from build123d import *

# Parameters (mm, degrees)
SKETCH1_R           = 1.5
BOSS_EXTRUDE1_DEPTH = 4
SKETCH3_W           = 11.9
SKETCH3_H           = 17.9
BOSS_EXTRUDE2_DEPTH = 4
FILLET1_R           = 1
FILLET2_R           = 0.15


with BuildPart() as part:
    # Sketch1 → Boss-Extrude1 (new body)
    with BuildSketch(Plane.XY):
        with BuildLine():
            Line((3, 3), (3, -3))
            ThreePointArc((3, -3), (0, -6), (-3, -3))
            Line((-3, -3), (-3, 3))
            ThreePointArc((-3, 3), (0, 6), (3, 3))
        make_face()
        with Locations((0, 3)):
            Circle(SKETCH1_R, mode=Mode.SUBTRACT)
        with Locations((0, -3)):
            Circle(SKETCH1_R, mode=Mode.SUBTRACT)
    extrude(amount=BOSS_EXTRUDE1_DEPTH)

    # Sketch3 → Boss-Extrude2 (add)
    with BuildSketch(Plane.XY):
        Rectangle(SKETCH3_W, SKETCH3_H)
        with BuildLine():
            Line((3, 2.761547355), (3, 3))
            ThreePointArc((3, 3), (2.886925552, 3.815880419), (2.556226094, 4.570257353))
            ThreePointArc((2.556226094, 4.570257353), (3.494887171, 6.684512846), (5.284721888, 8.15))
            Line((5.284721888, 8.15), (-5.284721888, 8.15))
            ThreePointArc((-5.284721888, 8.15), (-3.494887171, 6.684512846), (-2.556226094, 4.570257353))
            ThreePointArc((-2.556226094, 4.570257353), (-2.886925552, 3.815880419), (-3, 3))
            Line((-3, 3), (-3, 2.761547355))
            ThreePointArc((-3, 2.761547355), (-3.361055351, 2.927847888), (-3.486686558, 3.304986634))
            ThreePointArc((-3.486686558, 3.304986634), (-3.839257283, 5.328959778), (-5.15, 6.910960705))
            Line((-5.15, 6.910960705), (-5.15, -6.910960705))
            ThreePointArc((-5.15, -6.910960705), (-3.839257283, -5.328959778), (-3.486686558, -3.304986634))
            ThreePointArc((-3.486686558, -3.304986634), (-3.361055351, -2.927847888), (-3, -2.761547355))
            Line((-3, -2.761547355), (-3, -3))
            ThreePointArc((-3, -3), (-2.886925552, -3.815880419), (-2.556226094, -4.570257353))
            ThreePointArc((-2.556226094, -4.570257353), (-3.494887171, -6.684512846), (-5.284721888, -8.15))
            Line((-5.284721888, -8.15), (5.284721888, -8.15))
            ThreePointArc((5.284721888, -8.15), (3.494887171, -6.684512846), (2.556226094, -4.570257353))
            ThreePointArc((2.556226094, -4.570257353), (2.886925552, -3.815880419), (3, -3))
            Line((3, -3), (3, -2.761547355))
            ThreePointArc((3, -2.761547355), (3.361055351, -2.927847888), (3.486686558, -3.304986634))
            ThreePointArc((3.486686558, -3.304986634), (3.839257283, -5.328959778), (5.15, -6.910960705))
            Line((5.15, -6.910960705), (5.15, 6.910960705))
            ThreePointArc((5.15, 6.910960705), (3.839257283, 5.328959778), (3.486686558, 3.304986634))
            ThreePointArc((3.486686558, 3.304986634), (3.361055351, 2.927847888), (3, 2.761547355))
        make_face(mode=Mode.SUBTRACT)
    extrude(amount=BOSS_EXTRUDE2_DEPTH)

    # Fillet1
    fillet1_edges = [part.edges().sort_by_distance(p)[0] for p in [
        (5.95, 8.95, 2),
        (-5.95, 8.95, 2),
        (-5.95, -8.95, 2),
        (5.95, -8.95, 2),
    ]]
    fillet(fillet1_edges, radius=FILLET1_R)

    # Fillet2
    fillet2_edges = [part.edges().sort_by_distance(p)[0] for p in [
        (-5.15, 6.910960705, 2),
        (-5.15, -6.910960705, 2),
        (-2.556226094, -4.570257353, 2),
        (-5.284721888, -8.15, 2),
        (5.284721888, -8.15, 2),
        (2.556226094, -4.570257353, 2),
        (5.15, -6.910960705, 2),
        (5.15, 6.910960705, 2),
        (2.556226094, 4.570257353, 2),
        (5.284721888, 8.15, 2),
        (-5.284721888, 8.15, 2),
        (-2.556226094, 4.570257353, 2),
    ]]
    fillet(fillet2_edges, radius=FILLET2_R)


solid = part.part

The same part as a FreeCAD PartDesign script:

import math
import FreeCAD as App
import Part
import Sketcher
from FreeCAD import Vector
Q = App.Units.Quantity


def edges_at(feature, points):
    """Names of the edges that pass closest to the given points."""
    edges = feature.Shape.Edges
    near = lambda p: min(range(len(edges)), key=lambda i: edges[i].distToShape(Part.Vertex(*p))[0])
    return sorted({f"Edge{near(p) + 1}" for p in points})


def add_polygon(sketch, points):
    """Adds a closed chain of lines whose ends are joined by coincident constraints."""
    first, n = sketch.GeometryCount, len(points)
    for a, b in zip(points, points[1:] + points[:1]):
        sketch.addGeometry(Part.LineSegment(App.Vector(*a, 0), App.Vector(*b, 0)), False)
    for i in range(n):
        sketch.addConstraint(Sketcher.Constraint("Coincident", first + i, 2, first + (i + 1) % n, 1))

doc = App.newDocument("Part")
params = doc.addObject("Spreadsheet::Sheet", "Params")
for row, (alias, value) in enumerate([
    ("sketch1_diameter", "3 mm"),
    ("sketch1_radius", "3 mm"),
    ("sketch1_height", "6 mm"),
    ("pad1_length", "4 mm"),
    ("sketch2_radius", "4 mm"),
    ("sketch2_radius2", "3 mm"),
    ("sketch2_radius3", "5 mm"),
    ("sketch2_radius4", "0.5 mm"),
    ("sketch2_width", "11.9 mm"),
    ("pad2_length", "4 mm"),
    ("fillet_radius", "1 mm"),
    ("fillet2_radius", "0.15 mm"),
], start=1):
    params.set(f"A{row}", alias)
    params.set(f"B{row}", "=" + value)
    params.setAlias(f"B{row}", alias)

body = doc.addObject("PartDesign::Body", "Body")

# Sketch on XY plane
sketch1 = body.newObject("Sketcher::SketchObject", "Sketch")
sketch1.AttachmentSupport = (doc.getObject("XY_Plane"), [""])
sketch1.MapMode = "FlatFace"
sketch1.addGeometry([
    Part.LineSegment(Vector(3, -3, 0), Vector(3, 3, 0)),  # 0
    Part.ArcOfCircle(Part.Circle(Vector(0, 3, 0), Vector(0, 0, 1), 3), math.radians(0), math.radians(180)),  # 1
    Part.LineSegment(Vector(-3, 3, 0), Vector(-3, -3, 0)),  # 2
    Part.ArcOfCircle(Part.Circle(Vector(0, -3, 0), Vector(0, 0, 1), 3), math.radians(180), math.radians(360)),  # 3
    Part.Circle(Vector(0, -3, 0), Vector(0, 0, 1), 1.5),  # 4
    Part.Circle(Vector(0, 3, 0), Vector(0, 0, 1), 1.5),  # 5
], False)
sketch1.addConstraint([
    Sketcher.Constraint("Tangent", 0, 2, 1, 1),
    Sketcher.Constraint("Tangent", 1, 2, 2, 1),
    Sketcher.Constraint("Tangent", 2, 2, 3, 1),
    Sketcher.Constraint("Tangent", 3, 2, 0, 1),
    Sketcher.Constraint("Vertical", 0),
    Sketcher.Constraint("Vertical", 2),
    Sketcher.Constraint("Coincident", 4, 3, 3, 3),
    Sketcher.Constraint("Coincident", 5, 3, 1, 3),
    Sketcher.Constraint("Equal", 4, 5),
    Sketcher.Constraint("Symmetric", 1, 3, 3, 3, -1, 1),
    Sketcher.Constraint("Diameter", 4, Q("3 mm")),
    Sketcher.Constraint("Radius", 1, Q("3 mm")),
    Sketcher.Constraint("DistanceY", 0, 1, 0, 2, Q("6 mm")),
])
sketch1.setExpression("Constraints[10]", "Params.sketch1_diameter")
sketch1.setExpression("Constraints[11]", "Params.sketch1_radius")
sketch1.setExpression("Constraints[12]", "Params.sketch1_height")
pad1 = body.newObject("PartDesign::Pad", "Pad")
pad1.Profile = sketch1
pad1.setExpression("Length", "Params.pad1_length")

# Sketch on XY plane
sketch2 = body.newObject("Sketcher::SketchObject", "Sketch001")
sketch2.AttachmentSupport = (doc.getObject("XY_Plane"), [""])
sketch2.MapMode = "FlatFace"
add_polygon(sketch2, [(-5.95, 8.95), (-5.95, -8.95), (5.95, -8.95), (5.95, 8.95)])  # lines 0-3
sketch2.addGeometry(Part.LineSegment(Vector(3, 3, 0), Vector(3, 2.76, 0)), False)  # 4
sketch2.addGeometry(Part.ArcOfCircle(Part.Circle(Vector(2.99, 3.26, 0), Vector(0, 0, 1), 0.5), math.radians(-89), math.radians(5)), False)  # 5
sketch2.addGeometry(Part.ArcOfCircle(Part.Circle(Vector(7.47, 3.65, 0), Vector(0, 0, 1), 4), math.radians(125), math.radians(185)), False)  # 6
sketch2.addGeometry(Part.LineSegment(Vector(5.15, 6.91, 0), Vector(5.15, -6.91, 0)), False)  # 7
sketch2.addGeometry(Part.ArcOfCircle(Part.Circle(Vector(7.47, -3.65, 0), Vector(0, 0, 1), 4), math.radians(175), math.radians(235)), False)  # 8
sketch2.addGeometry(Part.ArcOfCircle(Part.Circle(Vector(2.99, -3.26, 0), Vector(0, 0, 1), 0.5), math.radians(-5), math.radians(89)), False)  # 9
sketch2.addGeometry(Part.LineSegment(Vector(3, -2.76, 0), Vector(3, -3, 0)), False)  # 10
sketch2.addGeometry(Part.ArcOfCircle(Part.Circle(Vector(0, -3, 0), Vector(0, 0, 1), 3), math.radians(-32), math.radians(0)), False)  # 11
sketch2.addGeometry(Part.ArcOfCircle(Part.Circle(Vector(7.47, -3.65, 0), Vector(0, 0, 1), 5), math.radians(-169), math.radians(-116)), False)  # 12
sketch2.addGeometry(Part.LineSegment(Vector(5.28, -8.15, 0), Vector(-5.28, -8.15, 0)), False)  # 13
sketch2.addGeometry(Part.ArcOfCircle(Part.Circle(Vector(-7.47, -3.65, 0), Vector(0, 0, 1), 5), math.radians(-64), math.radians(-11)), False)  # 14
sketch2.addGeometry(Part.ArcOfCircle(Part.Circle(Vector(0, -3, 0), Vector(0, 0, 1), 3), math.radians(180), math.radians(212)), False)  # 15
sketch2.addGeometry(Part.LineSegment(Vector(-3, -3, 0), Vector(-3, -2.76, 0)), False)  # 16
sketch2.addGeometry(Part.ArcOfCircle(Part.Circle(Vector(-2.99, -3.26, 0), Vector(0, 0, 1), 0.5), math.radians(91), math.radians(185)), False)  # 17
sketch2.addGeometry(Part.ArcOfCircle(Part.Circle(Vector(-7.47, -3.65, 0), Vector(0, 0, 1), 4), math.radians(-55), math.radians(5)), False)  # 18
sketch2.addGeometry(Part.LineSegment(Vector(-5.15, -6.91, 0), Vector(-5.15, 6.91, 0)), False)  # 19
sketch2.addGeometry(Part.ArcOfCircle(Part.Circle(Vector(-7.47, 3.65, 0), Vector(0, 0, 1), 4), math.radians(-5), math.radians(55)), False)  # 20
sketch2.addGeometry(Part.ArcOfCircle(Part.Circle(Vector(-2.99, 3.26, 0), Vector(0, 0, 1), 0.5), math.radians(175), math.radians(269)), False)  # 21
sketch2.addGeometry(Part.LineSegment(Vector(-3, 2.76, 0), Vector(-3, 3, 0)), False)  # 22
sketch2.addGeometry(Part.ArcOfCircle(Part.Circle(Vector(0, 3, 0), Vector(0, 0, 1), 3), math.radians(148), math.radians(180)), False)  # 23
sketch2.addGeometry(Part.ArcOfCircle(Part.Circle(Vector(-7.47, 3.65, 0), Vector(0, 0, 1), 5), math.radians(11), math.radians(64)), False)  # 24
sketch2.addGeometry(Part.LineSegment(Vector(-5.28, 8.15, 0), Vector(5.28, 8.15, 0)), False)  # 25
sketch2.addGeometry(Part.ArcOfCircle(Part.Circle(Vector(7.47, 3.65, 0), Vector(0, 0, 1), 5), math.radians(116), math.radians(169)), False)  # 26
sketch2.addGeometry(Part.ArcOfCircle(Part.Circle(Vector(0, 3, 0), Vector(0, 0, 1), 3), math.radians(0), math.radians(32)), False)  # 27
sketch2.addConstraint([
    Sketcher.Constraint("Coincident", 4, 2, 5, 1),
    Sketcher.Constraint("Tangent", 5, 2, 6, 2),
    Sketcher.Constraint("Coincident", 6, 1, 7, 1),
    Sketcher.Constraint("Coincident", 7, 2, 8, 2),
    Sketcher.Constraint("Tangent", 8, 1, 9, 1),
    Sketcher.Constraint("Coincident", 9, 2, 10, 1),
    Sketcher.Constraint("Tangent", 10, 2, 11, 2),
    Sketcher.Constraint("Coincident", 11, 1, 12, 1),
    Sketcher.Constraint("Coincident", 12, 2, 13, 1),
    Sketcher.Constraint("Coincident", 13, 2, 14, 1),
    Sketcher.Constraint("Coincident", 14, 2, 15, 2),
    Sketcher.Constraint("Tangent", 15, 1, 16, 1),
    Sketcher.Constraint("Coincident", 16, 2, 17, 1),
    Sketcher.Constraint("Tangent", 17, 2, 18, 2),
    Sketcher.Constraint("Coincident", 18, 1, 19, 1),
    Sketcher.Constraint("Coincident", 19, 2, 20, 2),
    Sketcher.Constraint("Tangent", 20, 1, 21, 1),
    Sketcher.Constraint("Coincident", 21, 2, 22, 1),
    Sketcher.Constraint("Tangent", 22, 2, 23, 2),
    Sketcher.Constraint("Coincident", 23, 1, 24, 1),
    Sketcher.Constraint("Coincident", 24, 2, 25, 1),
    Sketcher.Constraint("Coincident", 25, 2, 26, 1),
    Sketcher.Constraint("Coincident", 26, 2, 27, 2),
    Sketcher.Constraint("Tangent", 27, 1, 4, 1),
    Sketcher.Constraint("Vertical", 0),
    Sketcher.Constraint("Horizontal", 1),
    Sketcher.Constraint("Vertical", 2),
    Sketcher.Constraint("Horizontal", 3),
    Sketcher.Constraint("Vertical", 4),
    Sketcher.Constraint("Vertical", 7),
    Sketcher.Constraint("Vertical", 10),
    Sketcher.Constraint("Horizontal", 13),
    Sketcher.Constraint("Vertical", 16),
    Sketcher.Constraint("Vertical", 19),
    Sketcher.Constraint("Vertical", 22),
    Sketcher.Constraint("Horizontal", 25),
    Sketcher.Constraint("Coincident", 12, 3, 8, 3),
    Sketcher.Constraint("Coincident", 15, 3, 11, 3),
    Sketcher.Constraint("Coincident", 18, 3, 14, 3),
    Sketcher.Constraint("Coincident", 24, 3, 20, 3),
    Sketcher.Constraint("Coincident", 26, 3, 6, 3),
    Sketcher.Constraint("Coincident", 27, 3, 23, 3),
    Sketcher.Constraint("Equal", 6, 8),
    Sketcher.Constraint("Equal", 5, 9),
    Sketcher.Constraint("Equal", 12, 14),
    Sketcher.Constraint("Equal", 11, 15),
    Sketcher.Constraint("Equal", 9, 17),
    Sketcher.Constraint("Equal", 8, 18),
    Sketcher.Constraint("Equal", 18, 20),
    Sketcher.Constraint("Equal", 17, 21),
    Sketcher.Constraint("Equal", 15, 23),
    Sketcher.Constraint("Equal", 14, 24),
    Sketcher.Constraint("Equal", 24, 26),
    Sketcher.Constraint("Equal", 23, 27),
    Sketcher.Constraint("Symmetric", 6, 3, 14, 3, -1, 1),
    Sketcher.Constraint("Symmetric", 8, 3, 20, 3, -1, 1),
    Sketcher.Constraint("Symmetric", 11, 3, 23, 3, -1, 1),
    Sketcher.Constraint("Symmetric", 0, 2, 2, 2, -1, 1),
    Sketcher.Constraint("Symmetric", 8, 3, 14, 3, -2),
    Sketcher.Constraint("Symmetric", 9, 2, 16, 2, -2),
    Sketcher.Constraint("Horizontal", 5, 3, 21, 3),
    Sketcher.Constraint("Horizontal", 7, 2, 18, 1),
    Sketcher.Constraint("Vertical", 5, 3, 9, 3),
    Sketcher.Constraint("Vertical", 13, 2, 24, 2),
    Sketcher.Constraint("Radius", 6, Q("4 mm")),
    Sketcher.Constraint("Radius", 11, Q("3 mm")),
    Sketcher.Constraint("Radius", 12, Q("5 mm")),
    Sketcher.Constraint("Radius", 5, Q("0.5 mm")),
    Sketcher.Constraint("DistanceX", 1, 1, 1, 2, Q("11.9 mm")),
    Sketcher.Constraint("DistanceY", 0, 2, 0, 1, Q("17.9 mm")),
    Sketcher.Constraint("DistanceY", 11, 3, -1, 1, Q("3 mm")),
    Sketcher.Constraint("DistanceX", 6, 1, 2, 2, Q("0.8 mm")),
    Sketcher.Constraint("DistanceY", 1, 2, 12, 2, Q("0.8 mm")),
    Sketcher.Constraint("DistanceY", 7, 2, 7, 1, Q("13.821921 mm")),
    Sketcher.Constraint("DistanceX", 5, 3, 5, 2, Q("0.498098 mm")),
    Sketcher.Constraint("DistanceX", 13, 2, 13, 1, Q("10.569444 mm")),
])
sketch2.setExpression("Constraints[68]", "Params.sketch2_radius")
sketch2.setExpression("Constraints[69]", "Params.sketch2_radius2")
sketch2.setExpression("Constraints[70]", "Params.sketch2_radius3")
sketch2.setExpression("Constraints[71]", "Params.sketch2_radius4")
sketch2.setExpression("Constraints[72]", "Params.sketch2_width")
pad2 = body.newObject("PartDesign::Pad", "Pad001")
pad2.Profile = sketch2
pad2.setExpression("Length", "Params.pad2_length")
doc.recompute()

fillet = body.newObject("PartDesign::Fillet", "Fillet")
fillet.Base = (pad2, edges_at(pad2, [
    (5.95, 8.95, 2),
    (-5.95, 8.95, 2),
    (-5.95, -8.95, 2),
    (5.95, -8.95, 2),
]))
fillet.setExpression("Radius", "Params.fillet_radius")
doc.recompute()

fillet2 = body.newObject("PartDesign::Fillet", "Fillet001")
fillet2.Base = (fillet, edges_at(fillet, [
    (-5.15, 6.911, 2),
    (-5.15, -6.911, 2),
    (-2.556, -4.57, 2),
    (-5.285, -8.15, 2),
    (5.285, -8.15, 2),
    (2.556, -4.57, 2),
    (5.15, -6.911, 2),
    (5.15, 6.911, 2),
    (2.556, 4.57, 2),
    (5.285, 8.15, 2),
    (-5.285, 8.15, 2),
    (-2.556, 4.57, 2),
]))
fillet2.setExpression("Radius", "Params.fillet2_radius")

doc.recompute()
